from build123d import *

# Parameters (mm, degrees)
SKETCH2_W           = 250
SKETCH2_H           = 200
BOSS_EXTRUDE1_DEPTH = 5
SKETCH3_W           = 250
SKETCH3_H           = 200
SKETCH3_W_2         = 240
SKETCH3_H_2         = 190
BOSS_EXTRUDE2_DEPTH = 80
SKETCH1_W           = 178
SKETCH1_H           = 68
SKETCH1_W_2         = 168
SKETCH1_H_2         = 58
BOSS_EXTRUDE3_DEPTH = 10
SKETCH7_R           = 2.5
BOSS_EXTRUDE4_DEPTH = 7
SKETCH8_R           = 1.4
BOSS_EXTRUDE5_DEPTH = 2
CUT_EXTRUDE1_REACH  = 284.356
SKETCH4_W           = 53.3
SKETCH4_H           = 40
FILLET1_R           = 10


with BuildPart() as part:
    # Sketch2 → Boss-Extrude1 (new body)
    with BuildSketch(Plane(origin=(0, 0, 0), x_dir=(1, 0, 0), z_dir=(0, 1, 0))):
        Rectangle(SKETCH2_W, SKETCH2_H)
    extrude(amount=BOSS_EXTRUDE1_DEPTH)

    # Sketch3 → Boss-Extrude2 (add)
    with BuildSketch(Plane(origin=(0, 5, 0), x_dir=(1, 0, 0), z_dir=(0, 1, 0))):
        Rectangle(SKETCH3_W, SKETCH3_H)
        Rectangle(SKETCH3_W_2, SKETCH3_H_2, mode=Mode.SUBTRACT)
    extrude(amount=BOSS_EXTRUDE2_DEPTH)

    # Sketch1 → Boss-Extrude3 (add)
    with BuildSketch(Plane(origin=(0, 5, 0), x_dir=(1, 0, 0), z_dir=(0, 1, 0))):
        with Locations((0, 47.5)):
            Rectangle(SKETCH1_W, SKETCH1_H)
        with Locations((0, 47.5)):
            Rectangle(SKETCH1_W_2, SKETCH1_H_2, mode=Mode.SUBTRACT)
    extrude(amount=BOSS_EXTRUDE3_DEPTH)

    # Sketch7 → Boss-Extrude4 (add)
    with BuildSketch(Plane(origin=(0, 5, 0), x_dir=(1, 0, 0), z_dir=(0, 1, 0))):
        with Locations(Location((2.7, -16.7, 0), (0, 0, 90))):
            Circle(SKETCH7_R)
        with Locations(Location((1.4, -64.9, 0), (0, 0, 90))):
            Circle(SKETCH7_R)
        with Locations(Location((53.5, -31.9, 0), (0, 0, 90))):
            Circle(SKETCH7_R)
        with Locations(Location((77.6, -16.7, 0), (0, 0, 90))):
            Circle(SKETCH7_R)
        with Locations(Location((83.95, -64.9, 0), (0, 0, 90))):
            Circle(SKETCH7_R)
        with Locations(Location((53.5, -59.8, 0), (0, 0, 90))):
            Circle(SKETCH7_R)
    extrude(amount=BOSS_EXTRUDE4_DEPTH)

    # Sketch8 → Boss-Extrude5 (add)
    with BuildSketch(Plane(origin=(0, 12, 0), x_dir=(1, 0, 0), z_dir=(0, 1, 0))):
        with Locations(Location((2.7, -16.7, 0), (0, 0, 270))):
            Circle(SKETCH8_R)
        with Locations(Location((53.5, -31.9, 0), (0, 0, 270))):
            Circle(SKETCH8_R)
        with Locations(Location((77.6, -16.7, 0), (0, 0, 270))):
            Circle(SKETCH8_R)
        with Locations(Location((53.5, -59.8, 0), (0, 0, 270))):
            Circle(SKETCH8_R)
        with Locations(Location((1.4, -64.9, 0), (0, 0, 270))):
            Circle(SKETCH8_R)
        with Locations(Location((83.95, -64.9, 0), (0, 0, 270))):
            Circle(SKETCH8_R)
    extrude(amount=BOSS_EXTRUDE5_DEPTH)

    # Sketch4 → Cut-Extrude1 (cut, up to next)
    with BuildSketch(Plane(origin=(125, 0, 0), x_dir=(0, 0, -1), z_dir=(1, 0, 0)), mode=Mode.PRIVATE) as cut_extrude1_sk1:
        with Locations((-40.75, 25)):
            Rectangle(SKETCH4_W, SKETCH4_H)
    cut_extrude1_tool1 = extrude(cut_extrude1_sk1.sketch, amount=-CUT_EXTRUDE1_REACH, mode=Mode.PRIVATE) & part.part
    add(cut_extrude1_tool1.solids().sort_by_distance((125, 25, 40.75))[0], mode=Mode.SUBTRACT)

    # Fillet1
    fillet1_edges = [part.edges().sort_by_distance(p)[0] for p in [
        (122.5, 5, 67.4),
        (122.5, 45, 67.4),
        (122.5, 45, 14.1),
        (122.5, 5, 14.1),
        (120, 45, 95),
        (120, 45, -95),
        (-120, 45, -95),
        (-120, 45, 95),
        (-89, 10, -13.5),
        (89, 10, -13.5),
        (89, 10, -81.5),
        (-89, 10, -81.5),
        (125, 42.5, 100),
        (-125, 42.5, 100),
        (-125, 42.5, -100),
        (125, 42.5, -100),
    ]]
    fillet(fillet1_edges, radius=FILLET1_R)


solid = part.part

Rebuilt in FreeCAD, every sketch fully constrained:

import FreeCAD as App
import Part
import Sketcher


def edges_at(feature, points):
    """Names of the edges that pass closest to the given points."""
    edges = feature.Shape.Edges
    near = lambda p: min(range(len(edges)), key=lambda i: edges[i].distToShape(Part.Vertex(*p))[0])
    return sorted({f"Edge{near(p) + 1}" for p in points})


def add_polygon(sketch, points):
    """Adds a closed chain of lines whose ends are joined by coincident constraints."""
    first, n = sketch.GeometryCount, len(points)
    for a, b in zip(points, points[1:] + points[:1]):
        sketch.addGeometry(Part.LineSegment(App.Vector(*a, 0), App.Vector(*b, 0)), False)
    for i in range(n):
        sketch.addConstraint(Sketcher.Constraint("Coincident", first + i, 2, first + (i + 1) % n, 1))

doc = App.newDocument("Part")
body = doc.addObject("PartDesign::Body", "Body")

# Sketch on XZ plane
sketch1 = body.newObject("Sketcher::SketchObject", "Sketch")
sketch1.AttachmentSupport = (doc.getObject("XZ_Plane"), [""])
sketch1.MapMode = "FlatFace"
add_polygon(sketch1, [(-125, -100), (-125, 100), (125, 100), (125, -100)])  # lines 0-3
sketch1.addConstraint([
    Sketcher.Constraint("Vertical", 0),
    Sketcher.Constraint("Horizontal", 1),
    Sketcher.Constraint("Vertical", 2),
    Sketcher.Constraint("Horizontal", 3),
    Sketcher.Constraint("Symmetric", 0, 2, 2, 2, -1, 1),
    Sketcher.Constraint("DistanceX", 1, 1, 1, 2, 250.0),
    Sketcher.Constraint("DistanceY", 0, 1, 0, 2, 200.0),
])
pad1 = body.newObject("PartDesign::Pad", "Pad")
pad1.Profile = sketch1
pad1.Length = 5
pad1.Reversed = True

# Sketch on XZ plane
sketch2 = body.newObject("Sketcher::SketchObject", "Sketch001")
sketch2.AttachmentSupport = (doc.getObject("XZ_Plane"), [""])
sketch2.MapMode = "FlatFace"
sketch2.AttachmentOffset = App.Placement(App.Vector(0, 0, -5), App.Rotation())
add_polygon(sketch2, [(-125, -100), (-125, 100), (125, 100), (125, -100)])  # lines 0-3
add_polygon(sketch2, [(120, 95), (-120, 95), (-120, -95), (120, -95)])  # lines 4-7
sketch2.addConstraint([
    Sketcher.Constraint("Vertical", 0),
    Sketcher.Constraint("Horizontal", 1),
    Sketcher.Constraint("Vertical", 2),
    Sketcher.Constraint("Horizontal", 3),
    Sketcher.Constraint("Horizontal", 4),
    Sketcher.Constraint("Vertical", 5),
    Sketcher.Constraint("Horizontal", 6),
    Sketcher.Constraint("Vertical", 7),
    Sketcher.Constraint("Symmetric", 0, 2, 2, 2, -1, 1),
    Sketcher.Constraint("Symmetric", 4, 2, 6, 2, -1, 1),
    Sketcher.Constraint("DistanceX", 1, 1, 1, 2, 250.0),
    Sketcher.Constraint("DistanceX", 4, 2, 4, 1, 240.0),
    Sketcher.Constraint("DistanceY", 0, 1, 0, 2, 200.0),
    Sketcher.Constraint("DistanceY", 5, 2, 5, 1, 190.0),
])
pad2 = body.newObject("PartDesign::Pad", "Pad001")
pad2.Profile = sketch2
pad2.Length = 80
pad2.Reversed = True

# Sketch on XZ plane
sketch3 = body.newObject("Sketcher::SketchObject", "Sketch002")
sketch3.AttachmentSupport = (doc.getObject("XZ_Plane"), [""])
sketch3.MapMode = "FlatFace"
sketch3.AttachmentOffset = App.Placement(App.Vector(0, 0, -5), App.Rotation())
add_polygon(sketch3, [(-89, -81.5), (-89, -13.5), (89, -13.5), (89, -81.5)])  # lines 0-3
add_polygon(sketch3, [(84, -18.5), (-84, -18.5), (-84, -76.5), (84, -76.5)])  # lines 4-7
sketch3.addConstraint([
    Sketcher.Constraint("Vertical", 0),
    Sketcher.Constraint("Horizontal", 1),
    Sketcher.Constraint("Vertical", 2),
    Sketcher.Constraint("Horizontal", 3),
    Sketcher.Constraint("Horizontal", 4),
    Sketcher.Constraint("Vertical", 5),
    Sketcher.Constraint("Horizontal", 6),
    Sketcher.Constraint("Vertical", 7),
    Sketcher.Constraint("DistanceX", 1, 1, 1, 2, 178.0),
    Sketcher.Constraint("DistanceX", 4, 2, 4, 1, 168.0),
    Sketcher.Constraint("DistanceY", 0, 1, 0, 2, 68.0),
    Sketcher.Constraint("DistanceY", 5, 2, 5, 1, 58.0),
    Sketcher.Constraint("DistanceX", 0, 2, -1, 1, 89.0),
    Sketcher.Constraint("DistanceX", 4, 2, -1, 1, 84.0),
    Sketcher.Constraint("DistanceY", 4, 2, 0, 2, 5.0),
    Sketcher.Constraint("DistanceY", 0, 2, -1, 1, 13.5),
])
pad3 = body.newObject("PartDesign::Pad", "Pad002")
pad3.Profile = sketch3
pad3.Length = 10
pad3.Reversed = True

# Sketch on XZ plane
sketch4 = body.newObject("Sketcher::SketchObject", "Sketch003")
sketch4.AttachmentSupport = (doc.getObject("XZ_Plane"), [""])
sketch4.MapMode = "FlatFace"
sketch4.AttachmentOffset = App.Placement(App.Vector(0, 0, -5), App.Rotation())
sketch4.addGeometry([
    Part.Circle(App.Vector(2.7, 16.7, 0), App.Vector(0, 0, 1), 2.5),  # 0
    Part.Circle(App.Vector(1.4, 64.9, 0), App.Vector(0, 0, 1), 2.5),  # 1
    Part.Circle(App.Vector(53.5, 31.9, 0), App.Vector(0, 0, 1), 2.5),  # 2
    Part.Circle(App.Vector(77.6, 16.7, 0), App.Vector(0, 0, 1), 2.5),  # 3
    Part.Circle(App.Vector(83.95, 64.9, 0), App.Vector(0, 0, 1), 2.5),  # 4
    Part.Circle(App.Vector(53.5, 59.8, 0), App.Vector(0, 0, 1), 2.5),  # 5
], False)
sketch4.addConstraint([
    Sketcher.Constraint("Equal", 0, 1),
    Sketcher.Constraint("Equal", 1, 2),
    Sketcher.Constraint("Equal", 2, 3),
    Sketcher.Constraint("Equal", 3, 4),
    Sketcher.Constraint("Equal", 4, 5),
    Sketcher.Constraint("Horizontal", 0, 3, 3, 3),
    Sketcher.Constraint("Horizontal", 1, 3, 4, 3),
    Sketcher.Constraint("Vertical", 2, 3, 5, 3),
    Sketcher.Constraint("Diameter", 0, 5.0),
    Sketcher.Constraint("DistanceY", 2, 3, 1, 3, 33.0),
    Sketcher.Constraint("DistanceX", -1, 1, 0, 3, 2.7),
    Sketcher.Constraint("DistanceY", -1, 1, 0, 3, 16.7),
    Sketcher.Constraint("DistanceX", -1, 1, 1, 3, 1.4),
    Sketcher.Constraint("DistanceY", -1, 1, 1, 3, 64.9),
    Sketcher.Constraint("DistanceX", -1, 1, 2, 3, 53.5),
    Sketcher.Constraint("DistanceX", -1, 1, 3, 3, 77.6),
    Sketcher.Constraint("DistanceY", -1, 1, 5, 3, 59.8),
    Sketcher.Constraint("DistanceX", -1, 1, 4, 3, 83.95),
])
pad4 = body.newObject("PartDesign::Pad", "Pad003")
pad4.Profile = sketch4
pad4.Length = 7
pad4.Reversed = True

# Sketch on XZ plane
sketch5 = body.newObject("Sketcher::SketchObject", "Sketch004")
sketch5.AttachmentSupport = (doc.getObject("XZ_Plane"), [""])
sketch5.MapMode = "FlatFace"
sketch5.AttachmentOffset = App.Placement(App.Vector(0, 0, -12), App.Rotation())
sketch5.addGeometry([
    Part.Circle(App.Vector(2.7, 16.7, 0), App.Vector(0, 0, 1), 1.4),  # 0
    Part.Circle(App.Vector(53.5, 31.9, 0), App.Vector(0, 0, 1), 1.4),  # 1
    Part.Circle(App.Vector(77.6, 16.7, 0), App.Vector(0, 0, 1), 1.4),  # 2
    Part.Circle(App.Vector(53.5, 59.8, 0), App.Vector(0, 0, 1), 1.4),  # 3
    Part.Circle(App.Vector(1.4, 64.9, 0), App.Vector(0, 0, 1), 1.4),  # 4
    Part.Circle(App.Vector(83.95, 64.9, 0), App.Vector(0, 0, 1), 1.4),  # 5
], False)
sketch5.addConstraint([
    Sketcher.Constraint("Equal", 0, 1),
    Sketcher.Constraint("Equal", 1, 2),
    Sketcher.Constraint("Equal", 2, 3),
    Sketcher.Constraint("Equal", 3, 4),
    Sketcher.Constraint("Equal", 4, 5),
    Sketcher.Constraint("Horizontal", 0, 3, 2, 3),
    Sketcher.Constraint("Horizontal", 4, 3, 5, 3),
    Sketcher.Constraint("Vertical", 1, 3, 3, 3),
    Sketcher.Constraint("Diameter", 0, 2.8),
    Sketcher.Constraint("DistanceY", 1, 3, 4, 3, 33.0),
    Sketcher.Constraint("DistanceX", -1, 1, 0, 3, 2.7),
    Sketcher.Constraint("DistanceY", -1, 1, 0, 3, 16.7),
    Sketcher.Constraint("DistanceX", -1, 1, 1, 3, 53.5),
    Sketcher.Constraint("DistanceY", -1, 1, 1, 3, 31.9),
    Sketcher.Constraint("DistanceX", -1, 1, 2, 3, 77.6),
    Sketcher.Constraint("DistanceY", -1, 1, 3, 3, 59.8),
    Sketcher.Constraint("DistanceX", -1, 1, 4, 3, 1.4),
    Sketcher.Constraint("DistanceX", -1, 1, 5, 3, 83.95),
])
pad5 = body.newObject("PartDesign::Pad", "Pad004")
pad5.Profile = sketch5
pad5.Length = 2
pad5.Reversed = True

# Sketch on YZ plane
sketch6 = body.newObject("Sketcher::SketchObject", "Sketch005")
sketch6.AttachmentSupport = (doc.getObject("YZ_Plane"), [""])
sketch6.MapMode = "FlatFace"
sketch6.AttachmentOffset = App.Placement(App.Vector(0, 0, 125), App.Rotation())
add_polygon(sketch6, [(45, 67.4), (5, 67.4), (5, 14.1), (45, 14.1)])  # lines 0-3
sketch6.addConstraint([
    Sketcher.Constraint("Horizontal", 0),
    Sketcher.Constraint("Vertical", 1),
    Sketcher.Constraint("Horizontal", 2),
    Sketcher.Constraint("Vertical", 3),
    Sketcher.Constraint("DistanceX", 0, 2, 0, 1, 40.0),
    Sketcher.Constraint("DistanceY", 1, 2, 1, 1, 53.3),
    Sketcher.Constraint("DistanceX", -1, 1, 0, 2, 5.0),
    Sketcher.Constraint("DistanceY", -1, 1, 0, 2, 67.4),
])
pocket1 = body.newObject("PartDesign::Pocket", "Pocket")
pocket1.Profile = sketch6
pocket1.Type = "UpToFirst"
doc.recompute()

fillet = body.newObject("PartDesign::Fillet", "Fillet")
fillet.Base = (pocket1, edges_at(pocket1, [
    (122.5, 5, 67.4),
    (122.5, 45, 67.4),
    (122.5, 45, 14.1),
    (122.5, 5, 14.1),
    (120, 45, 95),
    (120, 45, -95),
    (-120, 45, -95),
    (-120, 45, 95),
    (-89, 10, -13.5),
    (89, 10, -13.5),
    (89, 10, -81.5),
    (-89, 10, -81.5),
    (125, 42.5, 100),
    (-125, 42.5, 100),
    (-125, 42.5, -100),
    (125, 42.5, -100),
]))
fillet.Radius = 10

doc.recompute()
